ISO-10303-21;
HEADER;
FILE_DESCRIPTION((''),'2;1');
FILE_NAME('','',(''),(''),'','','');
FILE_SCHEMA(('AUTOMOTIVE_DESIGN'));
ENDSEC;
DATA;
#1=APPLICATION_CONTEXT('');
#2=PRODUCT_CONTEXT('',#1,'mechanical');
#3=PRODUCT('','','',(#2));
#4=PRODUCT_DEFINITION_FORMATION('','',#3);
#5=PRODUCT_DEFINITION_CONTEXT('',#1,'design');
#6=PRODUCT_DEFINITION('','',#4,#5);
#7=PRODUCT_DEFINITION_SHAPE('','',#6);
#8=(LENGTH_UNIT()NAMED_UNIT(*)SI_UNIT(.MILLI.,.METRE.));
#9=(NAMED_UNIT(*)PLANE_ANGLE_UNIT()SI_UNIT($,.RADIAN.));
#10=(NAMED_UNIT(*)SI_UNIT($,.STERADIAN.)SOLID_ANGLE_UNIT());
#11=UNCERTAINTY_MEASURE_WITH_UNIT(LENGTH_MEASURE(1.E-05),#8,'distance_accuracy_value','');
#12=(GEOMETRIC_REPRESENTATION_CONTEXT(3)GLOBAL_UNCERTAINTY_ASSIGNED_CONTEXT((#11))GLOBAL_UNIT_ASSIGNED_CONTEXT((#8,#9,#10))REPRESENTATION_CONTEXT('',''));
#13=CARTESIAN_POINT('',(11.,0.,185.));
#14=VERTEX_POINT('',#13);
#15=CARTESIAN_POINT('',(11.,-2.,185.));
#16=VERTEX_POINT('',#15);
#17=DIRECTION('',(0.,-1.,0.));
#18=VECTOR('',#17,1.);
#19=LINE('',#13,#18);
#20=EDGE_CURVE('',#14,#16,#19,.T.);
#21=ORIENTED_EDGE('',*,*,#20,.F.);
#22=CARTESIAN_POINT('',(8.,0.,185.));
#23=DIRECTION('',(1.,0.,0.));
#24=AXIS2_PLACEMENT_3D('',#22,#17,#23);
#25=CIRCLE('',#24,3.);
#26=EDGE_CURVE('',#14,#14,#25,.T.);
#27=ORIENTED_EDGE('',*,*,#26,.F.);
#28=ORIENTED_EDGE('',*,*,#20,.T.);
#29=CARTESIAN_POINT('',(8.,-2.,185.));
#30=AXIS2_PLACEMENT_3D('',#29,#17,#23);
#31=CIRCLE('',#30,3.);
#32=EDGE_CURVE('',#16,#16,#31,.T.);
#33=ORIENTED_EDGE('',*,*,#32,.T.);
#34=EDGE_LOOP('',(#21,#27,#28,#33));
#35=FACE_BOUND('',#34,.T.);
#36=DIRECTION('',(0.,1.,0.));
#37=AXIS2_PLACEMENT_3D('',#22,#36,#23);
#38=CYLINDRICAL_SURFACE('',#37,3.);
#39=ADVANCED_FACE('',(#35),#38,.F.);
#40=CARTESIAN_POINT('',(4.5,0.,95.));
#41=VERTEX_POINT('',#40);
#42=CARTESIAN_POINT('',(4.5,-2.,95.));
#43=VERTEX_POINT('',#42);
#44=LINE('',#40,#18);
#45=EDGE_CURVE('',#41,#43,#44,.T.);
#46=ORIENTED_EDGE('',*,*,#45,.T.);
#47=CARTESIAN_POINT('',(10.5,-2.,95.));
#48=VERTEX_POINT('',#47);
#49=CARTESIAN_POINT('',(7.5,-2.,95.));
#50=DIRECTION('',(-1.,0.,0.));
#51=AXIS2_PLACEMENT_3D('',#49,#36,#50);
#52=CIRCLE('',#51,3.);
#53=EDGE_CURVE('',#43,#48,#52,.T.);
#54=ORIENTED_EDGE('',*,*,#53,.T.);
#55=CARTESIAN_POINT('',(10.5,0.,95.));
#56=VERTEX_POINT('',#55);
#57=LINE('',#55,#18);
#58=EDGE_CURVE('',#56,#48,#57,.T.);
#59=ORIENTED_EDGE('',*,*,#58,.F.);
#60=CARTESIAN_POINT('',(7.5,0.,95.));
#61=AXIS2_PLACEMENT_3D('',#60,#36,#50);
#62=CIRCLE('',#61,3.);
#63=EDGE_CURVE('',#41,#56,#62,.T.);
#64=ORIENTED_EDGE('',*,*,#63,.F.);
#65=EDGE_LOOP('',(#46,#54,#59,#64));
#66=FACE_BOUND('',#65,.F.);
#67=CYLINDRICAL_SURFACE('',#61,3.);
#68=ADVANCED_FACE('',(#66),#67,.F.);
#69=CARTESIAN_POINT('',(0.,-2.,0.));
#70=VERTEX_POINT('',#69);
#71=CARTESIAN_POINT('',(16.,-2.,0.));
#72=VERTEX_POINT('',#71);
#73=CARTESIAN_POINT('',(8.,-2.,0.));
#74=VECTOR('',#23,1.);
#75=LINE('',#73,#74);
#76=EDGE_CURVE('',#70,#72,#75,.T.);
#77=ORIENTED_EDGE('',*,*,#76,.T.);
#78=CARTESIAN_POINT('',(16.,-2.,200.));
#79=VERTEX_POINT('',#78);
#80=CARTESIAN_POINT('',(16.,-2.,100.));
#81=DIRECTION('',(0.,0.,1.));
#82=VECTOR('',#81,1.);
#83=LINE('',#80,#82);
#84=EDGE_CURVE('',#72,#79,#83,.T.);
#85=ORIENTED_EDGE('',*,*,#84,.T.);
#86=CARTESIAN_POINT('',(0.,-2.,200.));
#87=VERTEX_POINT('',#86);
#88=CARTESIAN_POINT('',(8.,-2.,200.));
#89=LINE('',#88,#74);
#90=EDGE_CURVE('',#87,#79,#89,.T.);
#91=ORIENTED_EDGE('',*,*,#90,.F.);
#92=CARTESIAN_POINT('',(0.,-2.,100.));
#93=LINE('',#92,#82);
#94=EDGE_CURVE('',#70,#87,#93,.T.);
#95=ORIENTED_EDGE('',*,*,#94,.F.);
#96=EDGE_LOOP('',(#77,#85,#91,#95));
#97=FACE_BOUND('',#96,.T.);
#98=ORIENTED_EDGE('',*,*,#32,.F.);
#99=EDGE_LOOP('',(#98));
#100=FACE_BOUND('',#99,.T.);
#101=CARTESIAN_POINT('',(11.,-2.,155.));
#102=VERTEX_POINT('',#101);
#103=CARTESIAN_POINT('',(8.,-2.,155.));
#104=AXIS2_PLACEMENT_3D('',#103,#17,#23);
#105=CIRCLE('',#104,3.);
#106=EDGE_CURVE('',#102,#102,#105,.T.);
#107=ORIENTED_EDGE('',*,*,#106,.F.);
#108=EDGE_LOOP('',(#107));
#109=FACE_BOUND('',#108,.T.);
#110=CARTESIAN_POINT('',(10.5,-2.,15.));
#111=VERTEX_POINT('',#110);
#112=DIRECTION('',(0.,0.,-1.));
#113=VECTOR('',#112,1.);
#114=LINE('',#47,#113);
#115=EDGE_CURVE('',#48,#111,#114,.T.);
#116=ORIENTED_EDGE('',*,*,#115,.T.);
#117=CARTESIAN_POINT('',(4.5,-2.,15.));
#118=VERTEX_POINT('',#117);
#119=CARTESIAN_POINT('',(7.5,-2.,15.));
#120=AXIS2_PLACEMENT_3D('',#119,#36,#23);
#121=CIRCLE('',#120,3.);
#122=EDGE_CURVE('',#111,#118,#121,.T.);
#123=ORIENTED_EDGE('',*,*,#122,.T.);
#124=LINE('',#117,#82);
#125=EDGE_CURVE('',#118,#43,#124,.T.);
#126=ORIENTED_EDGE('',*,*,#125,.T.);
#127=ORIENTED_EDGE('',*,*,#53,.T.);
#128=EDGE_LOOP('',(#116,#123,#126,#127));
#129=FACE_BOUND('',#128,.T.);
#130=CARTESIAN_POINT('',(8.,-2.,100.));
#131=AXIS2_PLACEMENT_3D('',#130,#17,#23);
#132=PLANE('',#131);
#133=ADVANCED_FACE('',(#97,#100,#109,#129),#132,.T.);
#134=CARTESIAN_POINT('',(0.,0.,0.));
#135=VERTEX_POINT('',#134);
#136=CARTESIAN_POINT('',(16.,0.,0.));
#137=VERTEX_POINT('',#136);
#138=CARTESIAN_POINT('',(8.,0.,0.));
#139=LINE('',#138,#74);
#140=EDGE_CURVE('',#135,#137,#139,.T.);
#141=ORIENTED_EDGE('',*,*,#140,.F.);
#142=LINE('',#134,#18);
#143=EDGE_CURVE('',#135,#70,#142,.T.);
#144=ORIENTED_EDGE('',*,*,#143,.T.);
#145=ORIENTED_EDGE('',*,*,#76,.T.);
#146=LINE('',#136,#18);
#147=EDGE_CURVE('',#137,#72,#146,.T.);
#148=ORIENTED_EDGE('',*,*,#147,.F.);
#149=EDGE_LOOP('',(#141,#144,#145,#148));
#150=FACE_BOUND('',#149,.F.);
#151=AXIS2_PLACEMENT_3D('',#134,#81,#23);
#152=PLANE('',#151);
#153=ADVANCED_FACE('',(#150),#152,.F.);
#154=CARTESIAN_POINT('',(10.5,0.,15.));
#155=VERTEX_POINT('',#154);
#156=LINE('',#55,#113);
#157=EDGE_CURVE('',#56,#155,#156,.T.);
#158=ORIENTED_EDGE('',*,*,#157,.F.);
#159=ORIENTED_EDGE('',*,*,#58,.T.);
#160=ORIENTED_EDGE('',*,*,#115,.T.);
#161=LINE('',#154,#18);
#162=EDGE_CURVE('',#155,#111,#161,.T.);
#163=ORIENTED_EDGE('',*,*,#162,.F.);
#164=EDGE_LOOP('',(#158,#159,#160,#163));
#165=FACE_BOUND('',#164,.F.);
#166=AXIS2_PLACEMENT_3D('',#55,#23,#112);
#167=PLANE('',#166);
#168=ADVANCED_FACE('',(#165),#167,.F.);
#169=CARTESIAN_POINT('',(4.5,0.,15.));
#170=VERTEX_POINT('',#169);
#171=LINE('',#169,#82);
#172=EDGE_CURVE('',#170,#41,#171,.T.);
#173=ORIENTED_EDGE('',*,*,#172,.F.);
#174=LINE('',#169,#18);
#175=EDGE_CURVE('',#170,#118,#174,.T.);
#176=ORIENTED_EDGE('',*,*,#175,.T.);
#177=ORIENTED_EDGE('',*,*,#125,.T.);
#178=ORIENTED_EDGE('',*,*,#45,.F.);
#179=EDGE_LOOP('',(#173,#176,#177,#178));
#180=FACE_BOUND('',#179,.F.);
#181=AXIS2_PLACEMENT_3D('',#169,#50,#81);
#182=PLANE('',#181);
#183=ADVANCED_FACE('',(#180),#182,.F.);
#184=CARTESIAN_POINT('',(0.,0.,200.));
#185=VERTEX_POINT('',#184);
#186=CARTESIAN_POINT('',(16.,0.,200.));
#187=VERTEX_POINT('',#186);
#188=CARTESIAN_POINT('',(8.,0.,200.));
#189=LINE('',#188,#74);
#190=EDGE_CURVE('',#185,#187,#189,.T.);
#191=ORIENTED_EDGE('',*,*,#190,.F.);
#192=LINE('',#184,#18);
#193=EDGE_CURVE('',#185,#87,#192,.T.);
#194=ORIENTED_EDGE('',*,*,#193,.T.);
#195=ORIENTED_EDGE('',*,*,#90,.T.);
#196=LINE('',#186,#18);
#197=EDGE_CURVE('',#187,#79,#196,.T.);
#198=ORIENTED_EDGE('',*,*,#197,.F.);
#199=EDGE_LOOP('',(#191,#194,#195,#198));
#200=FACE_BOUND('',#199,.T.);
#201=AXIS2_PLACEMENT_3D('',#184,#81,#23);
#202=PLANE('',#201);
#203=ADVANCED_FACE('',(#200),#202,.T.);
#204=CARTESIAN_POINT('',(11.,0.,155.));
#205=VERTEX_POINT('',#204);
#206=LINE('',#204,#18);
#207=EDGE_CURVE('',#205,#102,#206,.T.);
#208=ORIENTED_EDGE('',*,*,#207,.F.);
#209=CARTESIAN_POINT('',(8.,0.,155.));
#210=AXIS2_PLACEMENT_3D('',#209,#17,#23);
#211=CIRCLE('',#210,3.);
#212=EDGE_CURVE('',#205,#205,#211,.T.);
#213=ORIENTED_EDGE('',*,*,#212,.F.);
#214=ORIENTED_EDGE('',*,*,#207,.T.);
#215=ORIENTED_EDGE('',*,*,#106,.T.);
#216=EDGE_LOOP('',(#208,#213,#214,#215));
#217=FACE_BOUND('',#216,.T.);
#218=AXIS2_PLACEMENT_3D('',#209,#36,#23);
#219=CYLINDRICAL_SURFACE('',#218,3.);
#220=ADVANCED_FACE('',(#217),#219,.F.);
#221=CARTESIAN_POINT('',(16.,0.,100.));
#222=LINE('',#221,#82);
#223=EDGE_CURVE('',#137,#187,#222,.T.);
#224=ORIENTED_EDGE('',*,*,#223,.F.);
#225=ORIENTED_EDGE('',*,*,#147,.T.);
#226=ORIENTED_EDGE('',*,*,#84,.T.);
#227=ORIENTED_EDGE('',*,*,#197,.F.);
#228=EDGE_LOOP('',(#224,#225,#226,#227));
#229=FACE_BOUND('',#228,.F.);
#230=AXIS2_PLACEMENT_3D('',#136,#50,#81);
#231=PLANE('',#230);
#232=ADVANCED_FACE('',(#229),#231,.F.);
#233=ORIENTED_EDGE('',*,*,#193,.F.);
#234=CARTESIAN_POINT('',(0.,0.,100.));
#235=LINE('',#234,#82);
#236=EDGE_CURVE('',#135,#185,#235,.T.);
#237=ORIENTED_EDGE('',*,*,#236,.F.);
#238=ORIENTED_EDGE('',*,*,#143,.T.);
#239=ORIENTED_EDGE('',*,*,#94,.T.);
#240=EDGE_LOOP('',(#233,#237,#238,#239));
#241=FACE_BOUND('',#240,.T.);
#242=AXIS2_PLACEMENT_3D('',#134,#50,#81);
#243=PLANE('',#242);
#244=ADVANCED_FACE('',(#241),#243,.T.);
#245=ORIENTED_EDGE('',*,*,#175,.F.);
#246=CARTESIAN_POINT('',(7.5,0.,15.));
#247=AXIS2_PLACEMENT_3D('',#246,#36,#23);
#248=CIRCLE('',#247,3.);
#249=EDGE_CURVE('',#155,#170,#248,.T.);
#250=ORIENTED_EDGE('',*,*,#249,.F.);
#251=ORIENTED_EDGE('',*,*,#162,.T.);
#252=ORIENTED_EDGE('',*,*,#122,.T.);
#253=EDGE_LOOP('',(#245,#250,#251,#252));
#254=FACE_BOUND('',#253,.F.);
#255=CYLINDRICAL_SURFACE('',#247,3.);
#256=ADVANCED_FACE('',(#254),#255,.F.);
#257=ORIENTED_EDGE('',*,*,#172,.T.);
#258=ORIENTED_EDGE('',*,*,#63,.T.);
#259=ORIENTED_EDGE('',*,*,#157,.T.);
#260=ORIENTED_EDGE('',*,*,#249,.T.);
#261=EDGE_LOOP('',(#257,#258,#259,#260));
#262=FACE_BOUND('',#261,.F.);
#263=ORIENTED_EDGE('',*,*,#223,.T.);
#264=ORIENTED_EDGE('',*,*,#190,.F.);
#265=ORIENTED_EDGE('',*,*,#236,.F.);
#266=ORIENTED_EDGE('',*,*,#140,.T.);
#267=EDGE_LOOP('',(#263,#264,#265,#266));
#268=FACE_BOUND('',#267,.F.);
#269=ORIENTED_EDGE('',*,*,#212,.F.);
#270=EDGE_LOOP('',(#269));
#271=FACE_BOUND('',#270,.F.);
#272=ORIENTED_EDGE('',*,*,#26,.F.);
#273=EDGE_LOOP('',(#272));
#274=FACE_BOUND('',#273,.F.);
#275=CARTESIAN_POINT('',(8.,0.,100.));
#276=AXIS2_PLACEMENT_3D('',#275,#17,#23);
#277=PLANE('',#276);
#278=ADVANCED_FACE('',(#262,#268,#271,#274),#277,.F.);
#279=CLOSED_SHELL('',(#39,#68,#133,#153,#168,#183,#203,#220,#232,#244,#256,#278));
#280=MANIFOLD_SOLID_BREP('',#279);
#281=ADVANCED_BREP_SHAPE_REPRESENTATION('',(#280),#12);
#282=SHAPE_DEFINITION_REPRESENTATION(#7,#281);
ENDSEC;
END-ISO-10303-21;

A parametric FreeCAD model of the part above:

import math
import FreeCAD as App
import Part
import Sketcher

V = App.Vector


def add_polygon(sketch, points):
    """Adds a closed chain of lines whose ends are joined by coincident constraints."""
    first, n = sketch.GeometryCount, len(points)
    for a, b in zip(points, points[1:] + points[:1]):
        sketch.addGeometry(Part.LineSegment(App.Vector(*a, 0), App.Vector(*b, 0)), False)
    for i in range(n):
        sketch.addConstraint(Sketcher.Constraint("Coincident", first + i, 2, first + (i + 1) % n, 1))

doc = App.newDocument("Part")
params = doc.addObject("Spreadsheet::Sheet", "Params")
for row, (alias, value) in enumerate([
    ("sketch1_diameter", "6 mm"),
    ("sketch1_width", "16 mm"),
    ("sketch1_height", "200 mm"),
    ("sketch1_height2", "80 mm"),
    ("pad1_length", "2 mm"),
], start=1):
    params.set(f"A{row}", alias)
    params.set(f"B{row}", "=" + value)
    params.setAlias(f"B{row}", alias)

body = doc.addObject("PartDesign::Body", "Body")

# Sketch on XZ plane
sketch1 = body.newObject("Sketcher::SketchObject", "Sketch")
sketch1.AttachmentSupport = (doc.getObject("XZ_Plane"), [""])
sketch1.MapMode = "FlatFace"
add_polygon(sketch1, [(0, 200), (0, 0), (16, 0), (16, 200)])  # lines 0-3
sketch1.addGeometry(Part.ArcOfCircle(Part.Circle(V(7.5, 15, 0), V(0, 0, 1), 3), math.radians(180), math.radians(360)), False)  # 4
sketch1.addGeometry(Part.LineSegment(V(4.5, 15, 0), V(4.5, 95, 0)), False)  # 5
sketch1.addGeometry(Part.ArcOfCircle(Part.Circle(V(7.5, 95, 0), V(0, 0, 1), 3), math.radians(0), math.radians(180)), False)  # 6
sketch1.addGeometry(Part.LineSegment(V(10.5, 95, 0), V(10.5, 15, 0)), False)  # 7
sketch1.addGeometry(Part.Circle(V(8, 155, 0), V(0, 0, 1), 3), False)  # 8
sketch1.addGeometry(Part.Circle(V(8, 185, 0), V(0, 0, 1), 3), False)  # 9
sketch1.addConstraint([
    Sketcher.Constraint("Tangent", 4, 1, 5, 1),
    Sketcher.Constraint("Tangent", 5, 2, 6, 2),
    Sketcher.Constraint("Tangent", 6, 1, 7, 1),
    Sketcher.Constraint("Tangent", 7, 2, 4, 2),
    Sketcher.Constraint("Vertical", 0),
    Sketcher.Constraint("Horizontal", 1),
    Sketcher.Constraint("Vertical", 2),
    Sketcher.Constraint("Horizontal", 3),
    Sketcher.Constraint("Vertical", 5),
    Sketcher.Constraint("Vertical", 7),
    Sketcher.Constraint("Coincident", 0, 2, -1, 1),
    Sketcher.Constraint("Equal", 6, 8),
    Sketcher.Constraint("Equal", 8, 9),
    Sketcher.Constraint("Vertical", 8, 3, 9, 3),
    Sketcher.Constraint("Diameter", 8, 6.0),
    Sketcher.Constraint("DistanceX", 1, 1, 1, 2, 16.0),
    Sketcher.Constraint("DistanceY", 0, 2, 0, 1, 200.0),
    Sketcher.Constraint("DistanceY", 5, 1, 5, 2, 80.0),
    Sketcher.Constraint("DistanceY", -1, 1, 4, 3, 15.0),
    Sketcher.Constraint("DistanceX", -1, 1, 8, 3, 8.0),
    Sketcher.Constraint("DistanceY", -1, 1, 8, 3, 155.0),
    Sketcher.Constraint("DistanceY", -1, 1, 9, 3, 185.0),
    Sketcher.Constraint("DistanceX", -1, 1, 4, 3, 7.5),
])
sketch1.setExpression("Constraints[18]", "Params.sketch1_diameter")
sketch1.setExpression("Constraints[19]", "Params.sketch1_width")
sketch1.setExpression("Constraints[20]", "Params.sketch1_height")
sketch1.setExpression("Constraints[21]", "Params.sketch1_height2")
pad1 = body.newObject("PartDesign::Pad", "Pad")
pad1.Profile = sketch1
pad1.setExpression("Length", "Params.pad1_length")

doc.recompute()
